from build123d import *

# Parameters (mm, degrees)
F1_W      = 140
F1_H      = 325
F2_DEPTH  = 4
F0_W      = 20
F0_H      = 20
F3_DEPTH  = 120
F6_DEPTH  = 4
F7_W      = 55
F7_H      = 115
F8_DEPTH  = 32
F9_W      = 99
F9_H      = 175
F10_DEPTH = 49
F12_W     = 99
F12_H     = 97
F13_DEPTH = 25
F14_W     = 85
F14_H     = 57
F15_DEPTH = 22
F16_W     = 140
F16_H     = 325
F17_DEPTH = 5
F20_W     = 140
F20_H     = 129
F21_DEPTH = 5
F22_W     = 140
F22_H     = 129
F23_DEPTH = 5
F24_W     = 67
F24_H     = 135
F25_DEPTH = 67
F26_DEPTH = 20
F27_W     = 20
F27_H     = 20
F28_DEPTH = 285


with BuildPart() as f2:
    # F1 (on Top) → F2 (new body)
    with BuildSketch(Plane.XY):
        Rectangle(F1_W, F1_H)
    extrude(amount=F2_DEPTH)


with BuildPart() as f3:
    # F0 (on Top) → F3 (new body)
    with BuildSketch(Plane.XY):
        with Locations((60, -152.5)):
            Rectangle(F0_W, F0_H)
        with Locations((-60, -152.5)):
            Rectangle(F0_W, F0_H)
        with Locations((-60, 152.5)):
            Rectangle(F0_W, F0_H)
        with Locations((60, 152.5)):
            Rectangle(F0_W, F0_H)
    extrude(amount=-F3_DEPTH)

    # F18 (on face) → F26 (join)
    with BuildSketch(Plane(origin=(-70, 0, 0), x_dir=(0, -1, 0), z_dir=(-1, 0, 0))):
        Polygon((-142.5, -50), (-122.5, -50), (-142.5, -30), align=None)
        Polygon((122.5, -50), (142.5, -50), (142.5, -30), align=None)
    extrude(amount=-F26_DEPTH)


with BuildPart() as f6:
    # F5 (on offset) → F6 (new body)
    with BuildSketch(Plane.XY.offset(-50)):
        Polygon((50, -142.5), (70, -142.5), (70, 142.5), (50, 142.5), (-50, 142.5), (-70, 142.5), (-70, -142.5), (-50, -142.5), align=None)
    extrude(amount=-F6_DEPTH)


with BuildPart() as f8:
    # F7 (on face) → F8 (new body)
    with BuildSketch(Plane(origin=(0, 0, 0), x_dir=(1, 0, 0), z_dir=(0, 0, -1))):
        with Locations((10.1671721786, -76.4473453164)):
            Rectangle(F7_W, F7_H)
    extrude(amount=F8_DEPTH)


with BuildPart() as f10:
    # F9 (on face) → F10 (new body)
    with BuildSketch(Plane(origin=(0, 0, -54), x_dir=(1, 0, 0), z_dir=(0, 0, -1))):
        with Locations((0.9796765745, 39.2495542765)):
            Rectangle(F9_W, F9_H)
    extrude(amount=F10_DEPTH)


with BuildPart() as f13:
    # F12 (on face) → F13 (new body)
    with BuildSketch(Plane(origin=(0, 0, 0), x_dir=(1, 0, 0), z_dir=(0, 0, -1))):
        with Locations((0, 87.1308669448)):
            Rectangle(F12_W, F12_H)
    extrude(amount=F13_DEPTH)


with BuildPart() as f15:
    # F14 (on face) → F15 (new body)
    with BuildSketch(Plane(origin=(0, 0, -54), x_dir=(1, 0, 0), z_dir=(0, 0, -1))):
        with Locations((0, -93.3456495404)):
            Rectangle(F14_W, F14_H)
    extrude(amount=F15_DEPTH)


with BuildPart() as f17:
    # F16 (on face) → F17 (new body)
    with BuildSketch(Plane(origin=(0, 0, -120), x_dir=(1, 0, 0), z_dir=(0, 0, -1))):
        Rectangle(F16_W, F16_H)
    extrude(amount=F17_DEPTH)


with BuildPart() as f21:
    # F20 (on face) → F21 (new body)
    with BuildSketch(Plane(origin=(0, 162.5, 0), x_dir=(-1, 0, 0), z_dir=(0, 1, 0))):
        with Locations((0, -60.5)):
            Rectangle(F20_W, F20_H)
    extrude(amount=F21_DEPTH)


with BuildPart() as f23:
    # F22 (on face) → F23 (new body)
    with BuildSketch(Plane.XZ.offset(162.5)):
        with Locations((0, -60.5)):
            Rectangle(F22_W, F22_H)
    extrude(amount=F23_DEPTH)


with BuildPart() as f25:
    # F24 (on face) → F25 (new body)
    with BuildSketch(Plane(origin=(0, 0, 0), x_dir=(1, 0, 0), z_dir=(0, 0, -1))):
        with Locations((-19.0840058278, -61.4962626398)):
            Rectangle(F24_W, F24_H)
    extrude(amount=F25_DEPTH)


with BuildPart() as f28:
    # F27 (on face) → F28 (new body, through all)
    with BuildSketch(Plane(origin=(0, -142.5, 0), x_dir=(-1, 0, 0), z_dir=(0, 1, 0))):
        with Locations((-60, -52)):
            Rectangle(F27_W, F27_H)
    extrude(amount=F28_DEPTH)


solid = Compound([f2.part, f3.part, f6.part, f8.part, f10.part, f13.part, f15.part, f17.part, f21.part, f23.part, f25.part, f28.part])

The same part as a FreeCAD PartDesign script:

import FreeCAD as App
import Part
import Sketcher

V = App.Vector
Q = App.Units.Quantity

doc = App.newDocument("Part")
body = doc.addObject("PartDesign::Body", "Body")

sketch1 = doc.addObject("Sketcher::SketchObject", "Sketch")
body.addObject(sketch1)
sketch1.AttachmentSupport = (doc.XY_Plane, [""])
sketch1.MapMode = "FlatFace"
sketch1.addGeometry([
    Part.LineSegment(V(-70, 162.5, 0), V(-70, -162.5, 0)),
    Part.LineSegment(V(-70, -162.5, 0), V(70, -162.5, 0)),
    Part.LineSegment(V(70, -162.5, 0), V(70, 162.5, 0)),
    Part.LineSegment(V(70, 162.5, 0), V(-70, 162.5, 0)),
], False)
sketch1.addConstraint([
    Sketcher.Constraint("Coincident", 0, 2, 1, 1),
    Sketcher.Constraint("Coincident", 1, 2, 2, 1),
    Sketcher.Constraint("Coincident", 2, 2, 3, 1),
    Sketcher.Constraint("Coincident", 3, 2, 0, 1),
    Sketcher.Constraint("Vertical", 0),
    Sketcher.Constraint("Horizontal", 1),
    Sketcher.Constraint("Vertical", 2),
    Sketcher.Constraint("Horizontal", 3),
    Sketcher.Constraint("Symmetric", 0, 2, 2, 2, -1, 1),
    Sketcher.Constraint("DistanceX", 1, 1, 1, 2, Q("140 mm")),
    Sketcher.Constraint("DistanceY", 0, 2, 0, 1, Q("325 mm")),
])
pad1 = doc.addObject("PartDesign::Pad", "Pad")
body.addObject(pad1)
pad1.Profile = sketch1
pad1.Length = 4
body2 = doc.addObject("PartDesign::Body", "Body001")
body2.AllowCompound = True

sketch2 = doc.addObject("Sketcher::SketchObject", "Sketch001")
body2.addObject(sketch2)
sketch2.AttachmentSupport = (doc.getObject("XY_Plane001"), [""])
sketch2.MapMode = "FlatFace"
sketch2.addGeometry([
    Part.LineSegment(V(50, -142.5, 0), V(50, -162.5, 0)),
    Part.LineSegment(V(50, -162.5, 0), V(70, -162.5, 0)),
    Part.LineSegment(V(70, -162.5, 0), V(70, -142.5, 0)),
    Part.LineSegment(V(70, -142.5, 0), V(50, -142.5, 0)),
    Part.LineSegment(V(-70, -142.5, 0), V(-70, -162.5, 0)),
    Part.LineSegment(V(-70, -162.5, 0), V(-50, -162.5, 0)),
    Part.LineSegment(V(-50, -162.5, 0), V(-50, -142.5, 0)),
    Part.LineSegment(V(-50, -142.5, 0), V(-70, -142.5, 0)),
    Part.LineSegment(V(-70, 162.5, 0), V(-70, 142.5, 0)),
    Part.LineSegment(V(-70, 142.5, 0), V(-50, 142.5, 0)),
    Part.LineSegment(V(-50, 142.5, 0), V(-50, 162.5, 0)),
    Part.LineSegment(V(-50, 162.5, 0), V(-70, 162.5, 0)),
    Part.LineSegment(V(50, 162.5, 0), V(50, 142.5, 0)),
    Part.LineSegment(V(50, 142.5, 0), V(70, 142.5, 0)),
    Part.LineSegment(V(70, 142.5, 0), V(70, 162.5, 0)),
    Part.LineSegment(V(70, 162.5, 0), V(50, 162.5, 0)),
], False)
sketch2.addConstraint([
    Sketcher.Constraint("Coincident", 0, 2, 1, 1),
    Sketcher.Constraint("Coincident", 1, 2, 2, 1),
    Sketcher.Constraint("Coincident", 2, 2, 3, 1),
    Sketcher.Constraint("Coincident", 3, 2, 0, 1),
    Sketcher.Constraint("Coincident", 4, 2, 5, 1),
    Sketcher.Constraint("Coincident", 5, 2, 6, 1),
    Sketcher.Constraint("Coincident", 6, 2, 7, 1),
    Sketcher.Constraint("Coincident", 7, 2, 4, 1),
    Sketcher.Constraint("Coincident", 8, 2, 9, 1),
    Sketcher.Constraint("Coincident", 9, 2, 10, 1),
    Sketcher.Constraint("Coincident", 10, 2, 11, 1),
    Sketcher.Constraint("Coincident", 11, 2, 8, 1),
    Sketcher.Constraint("Coincident", 12, 2, 13, 1),
    Sketcher.Constraint("Coincident", 13, 2, 14, 1),
    Sketcher.Constraint("Coincident", 14, 2, 15, 1),
    Sketcher.Constraint("Coincident", 15, 2, 12, 1),
    Sketcher.Constraint("Vertical", 0),
    Sketcher.Constraint("Horizontal", 1),
    Sketcher.Constraint("Vertical", 2),
    Sketcher.Constraint("Horizontal", 3),
    Sketcher.Constraint("Vertical", 4),
    Sketcher.Constraint("Horizontal", 5),
    Sketcher.Constraint("Vertical", 6),
    Sketcher.Constraint("Horizontal", 7),
    Sketcher.Constraint("Vertical", 8),
    Sketcher.Constraint("Horizontal", 9),
    Sketcher.Constraint("Vertical", 10),
    Sketcher.Constraint("Horizontal", 11),
    Sketcher.Constraint("Vertical", 12),
    Sketcher.Constraint("Horizontal", 13),
    Sketcher.Constraint("Vertical", 14),
    Sketcher.Constraint("Horizontal", 15),
    Sketcher.Constraint("Symmetric", 2, 2, 8, 2, -1, 1),
    Sketcher.Constraint("Symmetric", 0, 2, 10, 2, -1, 1),
    Sketcher.Constraint("Symmetric", 6, 2, 12, 2, -1, 1),
    Sketcher.Constraint("Symmetric", 4, 2, 14, 2, -1, 1),
    Sketcher.Constraint("Symmetric", 1, 2, 4, 2, -2),
    Sketcher.Constraint("Symmetric", 3, 2, 6, 2, -2),
    Sketcher.Constraint("Equal", 15, 0),
    Sketcher.Constraint("DistanceX", 1, 1, 1, 2, Q("20 mm")),
    Sketcher.Constraint("DistanceX", -1, 1, 0, 2, Q("50 mm")),
    Sketcher.Constraint("DistanceY", 7, 2, 8, 2, Q("285 mm")),
])
pad2 = doc.addObject("PartDesign::Pad", "Pad001")
body2.addObject(pad2)
pad2.Profile = sketch2
pad2.Length = 120
pad2.Reversed = True

sketch3 = doc.addObject("Sketcher::SketchObject", "Sketch002")
body2.addObject(sketch3)
sketch3.AttachmentSupport = (doc.getObject("YZ_Plane001"), [""])
sketch3.MapMode = "FlatFace"
sketch3.AttachmentOffset = App.Placement(V(0, 0, -70), App.Rotation())
sketch3.addGeometry([
    Part.LineSegment(V(142.5, -50, 0), V(122.5, -50, 0)),
    Part.LineSegment(V(122.5, -50, 0), V(142.5, -30, 0)),
    Part.LineSegment(V(142.5, -30, 0), V(142.5, -50, 0)),
    Part.LineSegment(V(-122.5, -50, 0), V(-142.5, -50, 0)),
    Part.LineSegment(V(-142.5, -50, 0), V(-142.5, -30, 0)),
    Part.LineSegment(V(-142.5, -30, 0), V(-122.5, -50, 0)),
], False)
sketch3.addConstraint([
    Sketcher.Constraint("Coincident", 0, 2, 1, 1),
    Sketcher.Constraint("Coincident", 1, 2, 2, 1),
    Sketcher.Constraint("Coincident", 2, 2, 0, 1),
    Sketcher.Constraint("Coincident", 3, 2, 4, 1),
    Sketcher.Constraint("Coincident", 4, 2, 5, 1),
    Sketcher.Constraint("Coincident", 5, 2, 3, 1),
    Sketcher.Constraint("Horizontal", 0),
    Sketcher.Constraint("Vertical", 2),
    Sketcher.Constraint("Horizontal", 3),
    Sketcher.Constraint("Vertical", 4),
    Sketcher.Constraint("Symmetric", 2, 2, 3, 2, -2),
    Sketcher.Constraint("Perpendicular", 1, 5),
    Sketcher.Constraint("Horizontal", 1, 2, 4, 2),
    Sketcher.Constraint("Equal", 0, 3),
    Sketcher.Constraint("DistanceX", 0, 2, 0, 1, Q("20 mm")),
    Sketcher.Constraint("DistanceY", 0, 2, -1, 1, Q("50 mm")),
    Sketcher.Constraint("DistanceX", 3, 2, 0, 2, Q("265 mm")),
])
pad3 = doc.addObject("PartDesign::Pad", "Pad002")
body2.addObject(pad3)
pad3.Profile = sketch3
pad3.Length = 20
body3 = doc.addObject("PartDesign::Body", "Body002")

sketch4 = doc.addObject("Sketcher::SketchObject", "Sketch003")
body3.addObject(sketch4)
sketch4.AttachmentSupport = (doc.getObject("XY_Plane002"), [""])
sketch4.MapMode = "FlatFace"
sketch4.AttachmentOffset = App.Placement(V(0, 0, -50), App.Rotation())
sketch4.addGeometry([
    Part.LineSegment(V(70, -142.5, 0), V(70, 142.5, 0)),
    Part.LineSegment(V(70, 142.5, 0), V(-70, 142.5, 0)),
    Part.LineSegment(V(-70, 142.5, 0), V(-70, -142.5, 0)),
    Part.LineSegment(V(-70, -142.5, 0), V(70, -142.5, 0)),
], False)
sketch4.addConstraint([
    Sketcher.Constraint("Coincident", 0, 2, 1, 1),
    Sketcher.Constraint("Coincident", 1, 2, 2, 1),
    Sketcher.Constraint("Coincident", 2, 2, 3, 1),
    Sketcher.Constraint("Coincident", 3, 2, 0, 1),
    Sketcher.Constraint("Vertical", 0),
    Sketcher.Constraint("Horizontal", 1),
    Sketcher.Constraint("Vertical", 2),
    Sketcher.Constraint("Horizontal", 3),
    Sketcher.Constraint("Symmetric", 0, 2, 2, 2, -1, 1),
    Sketcher.Constraint("DistanceX", 1, 2, 1, 1, Q("140 mm")),
    Sketcher.Constraint("DistanceY", 0, 1, 0, 2, Q("285 mm")),
])
pad4 = doc.addObject("PartDesign::Pad", "Pad003")
body3.addObject(pad4)
pad4.Profile = sketch4
pad4.Length = 4
pad4.Reversed = True
body4 = doc.addObject("PartDesign::Body", "Body003")

sketch5 = doc.addObject("Sketcher::SketchObject", "Sketch004")
body4.addObject(sketch5)
sketch5.AttachmentSupport = (doc.getObject("XY_Plane003"), [""])
sketch5.MapMode = "FlatFace"
sketch5.addGeometry([
    Part.LineSegment(V(-17.332828, 18.947345, 0), V(-17.332828, 133.947345, 0)),
    Part.LineSegment(V(-17.332828, 133.947345, 0), V(37.667172, 133.947345, 0)),
    Part.LineSegment(V(37.667172, 133.947345, 0), V(37.667172, 18.947345, 0)),
    Part.LineSegment(V(37.667172, 18.947345, 0), V(-17.332828, 18.947345, 0)),
], False)
sketch5.addConstraint([
    Sketcher.Constraint("Coincident", 0, 2, 1, 1),
    Sketcher.Constraint("Coincident", 1, 2, 2, 1),
    Sketcher.Constraint("Coincident", 2, 2, 3, 1),
    Sketcher.Constraint("Coincident", 3, 2, 0, 1),
    Sketcher.Constraint("Vertical", 0),
    Sketcher.Constraint("Horizontal", 1),
    Sketcher.Constraint("Vertical", 2),
    Sketcher.Constraint("Horizontal", 3),
    Sketcher.Constraint("DistanceX", 1, 1, 1, 2, Q("55 mm")),
    Sketcher.Constraint("DistanceY", 0, 1, 0, 2, Q("115 mm")),
    Sketcher.Constraint("DistanceX", 0, 2, -1, 1, Q("17.332828 mm")),
    Sketcher.Constraint("DistanceY", -1, 1, 0, 2, Q("133.947345 mm")),
])
pad5 = doc.addObject("PartDesign::Pad", "Pad004")
body4.addObject(pad5)
pad5.Profile = sketch5
pad5.Length = 32
pad5.Reversed = True
body5 = doc.addObject("PartDesign::Body", "Body004")

sketch6 = doc.addObject("Sketcher::SketchObject", "Sketch005")
body5.addObject(sketch6)
sketch6.AttachmentSupport = (doc.getObject("XY_Plane004"), [""])
sketch6.MapMode = "FlatFace"
sketch6.AttachmentOffset = App.Placement(V(0, 0, -54), App.Rotation())
sketch6.addGeometry([
    Part.LineSegment(V(-48.520323, -126.749554, 0), V(-48.520323, 48.250446, 0)),
    Part.LineSegment(V(-48.520323, 48.250446, 0), V(50.479677, 48.250446, 0)),
    Part.LineSegment(V(50.479677, 48.250446, 0), V(50.479677, -126.749554, 0)),
    Part.LineSegment(V(50.479677, -126.749554, 0), V(-48.520323, -126.749554, 0)),
], False)
sketch6.addConstraint([
    Sketcher.Constraint("Coincident", 0, 2, 1, 1),
    Sketcher.Constraint("Coincident", 1, 2, 2, 1),
    Sketcher.Constraint("Coincident", 2, 2, 3, 1),
    Sketcher.Constraint("Coincident", 3, 2, 0, 1),
    Sketcher.Constraint("Vertical", 0),
    Sketcher.Constraint("Horizontal", 1),
    Sketcher.Constraint("Vertical", 2),
    Sketcher.Constraint("Horizontal", 3),
    Sketcher.Constraint("DistanceX", 1, 1, 1, 2, Q("99 mm")),
    Sketcher.Constraint("DistanceY", 0, 1, 0, 2, Q("175 mm")),
    Sketcher.Constraint("DistanceX", 0, 2, -1, 1, Q("48.520323 mm")),
    Sketcher.Constraint("DistanceY", -1, 1, 0, 2, Q("48.250446 mm")),
])
pad6 = doc.addObject("PartDesign::Pad", "Pad005")
body5.addObject(pad6)
pad6.Profile = sketch6
pad6.Length = 49
pad6.Reversed = True
body6 = doc.addObject("PartDesign::Body", "Body005")

sketch7 = doc.addObject("Sketcher::SketchObject", "Sketch006")
body6.addObject(sketch7)
sketch7.AttachmentSupport = (doc.getObject("XY_Plane005"), [""])
sketch7.MapMode = "FlatFace"
sketch7.addGeometry([
    Part.LineSegment(V(-49.5, -135.630867, 0), V(-49.5, -38.630867, 0)),
    Part.LineSegment(V(-49.5, -38.630867, 0), V(49.5, -38.630867, 0)),
    Part.LineSegment(V(49.5, -38.630867, 0), V(49.5, -135.630867, 0)),
    Part.LineSegment(V(49.5, -135.630867, 0), V(-49.5, -135.630867, 0)),
], False)
sketch7.addConstraint([
    Sketcher.Constraint("Coincident", 0, 2, 1, 1),
    Sketcher.Constraint("Coincident", 1, 2, 2, 1),
    Sketcher.Constraint("Coincident", 2, 2, 3, 1),
    Sketcher.Constraint("Coincident", 3, 2, 0, 1),
    Sketcher.Constraint("Vertical", 0),
    Sketcher.Constraint("Horizontal", 1),
    Sketcher.Constraint("Vertical", 2),
    Sketcher.Constraint("Horizontal", 3),
    Sketcher.Constraint("DistanceX", 1, 1, 1, 2, Q("99 mm")),
    Sketcher.Constraint("DistanceY", 0, 1, 0, 2, Q("97 mm")),
    Sketcher.Constraint("DistanceX", 0, 2, -1, 1, Q("49.5 mm")),
    Sketcher.Constraint("DistanceY", 0, 2, -1, 1, Q("38.630867 mm")),
])
pad7 = doc.addObject("PartDesign::Pad", "Pad006")
body6.addObject(pad7)
pad7.Profile = sketch7
pad7.Length = 25
pad7.Reversed = True
body7 = doc.addObject("PartDesign::Body", "Body006")

sketch8 = doc.addObject("Sketcher::SketchObject", "Sketch007")
body7.addObject(sketch8)
sketch8.AttachmentSupport = (doc.getObject("XY_Plane006"), [""])
sketch8.MapMode = "FlatFace"
sketch8.AttachmentOffset = App.Placement(V(0, 0, -54), App.Rotation())
sketch8.addGeometry([
    Part.LineSegment(V(-42.5, 64.84565, 0), V(-42.5, 121.84565, 0)),
    Part.LineSegment(V(-42.5, 121.84565, 0), V(42.5, 121.84565, 0)),
    Part.LineSegment(V(42.5, 121.84565, 0), V(42.5, 64.84565, 0)),
    Part.LineSegment(V(42.5, 64.84565, 0), V(-42.5, 64.84565, 0)),
], False)
sketch8.addConstraint([
    Sketcher.Constraint("Coincident", 0, 2, 1, 1),
    Sketcher.Constraint("Coincident", 1, 2, 2, 1),
    Sketcher.Constraint("Coincident", 2, 2, 3, 1),
    Sketcher.Constraint("Coincident", 3, 2, 0, 1),
    Sketcher.Constraint("Vertical", 0),
    Sketcher.Constraint("Horizontal", 1),
    Sketcher.Constraint("Vertical", 2),
    Sketcher.Constraint("Horizontal", 3),
    Sketcher.Constraint("DistanceX", 1, 1, 1, 2, Q("85 mm")),
    Sketcher.Constraint("DistanceY", 0, 1, 0, 2, Q("57 mm")),
    Sketcher.Constraint("DistanceX", 0, 2, -1, 1, Q("42.5 mm")),
    Sketcher.Constraint("DistanceY", -1, 1, 0, 2, Q("121.84565 mm")),
])
pad8 = doc.addObject("PartDesign::Pad", "Pad007")
body7.addObject(pad8)
pad8.Profile = sketch8
pad8.Length = 22
pad8.Reversed = True
body8 = doc.addObject("PartDesign::Body", "Body007")

sketch9 = doc.addObject("Sketcher::SketchObject", "Sketch008")
body8.addObject(sketch9)
sketch9.AttachmentSupport = (doc.getObject("XY_Plane007"), [""])
sketch9.MapMode = "FlatFace"
sketch9.AttachmentOffset = App.Placement(V(0, 0, -120), App.Rotation())
sketch9.addGeometry([
    Part.LineSegment(V(-70, -162.5, 0), V(-70, 162.5, 0)),
    Part.LineSegment(V(-70, 162.5, 0), V(70, 162.5, 0)),
    Part.LineSegment(V(70, 162.5, 0), V(70, -162.5, 0)),
    Part.LineSegment(V(70, -162.5, 0), V(-70, -162.5, 0)),
], False)
sketch9.addConstraint([
    Sketcher.Constraint("Coincident", 0, 2, 1, 1),
    Sketcher.Constraint("Coincident", 1, 2, 2, 1),
    Sketcher.Constraint("Coincident", 2, 2, 3, 1),
    Sketcher.Constraint("Coincident", 3, 2, 0, 1),
    Sketcher.Constraint("Vertical", 0),
    Sketcher.Constraint("Horizontal", 1),
    Sketcher.Constraint("Vertical", 2),
    Sketcher.Constraint("Horizontal", 3),
    Sketcher.Constraint("Symmetric", 0, 2, 2, 2, -1, 1),
    Sketcher.Constraint("DistanceX", 1, 1, 1, 2, Q("140 mm")),
    Sketcher.Constraint("DistanceY", 0, 1, 0, 2, Q("325 mm")),
])
pad9 = doc.addObject("PartDesign::Pad", "Pad008")
body8.addObject(pad9)
pad9.Profile = sketch9
pad9.Length = 5
pad9.Reversed = True
body9 = doc.addObject("PartDesign::Body", "Body008")

sketch10 = doc.addObject("Sketcher::SketchObject", "Sketch009")
body9.addObject(sketch10)
sketch10.AttachmentSupport = (doc.getObject("XZ_Plane008"), [""])
sketch10.MapMode = "FlatFace"
sketch10.AttachmentOffset = App.Placement(V(0, 0, -162.5), App.Rotation())
sketch10.addGeometry([
    Part.LineSegment(V(70, 4, 0), V(70, -125, 0)),
    Part.LineSegment(V(70, -125, 0), V(-70, -125, 0)),
    Part.LineSegment(V(-70, -125, 0), V(-70, 4, 0)),
    Part.LineSegment(V(-70, 4, 0), V(70, 4, 0)),
], False)
sketch10.addConstraint([
    Sketcher.Constraint("Coincident", 0, 2, 1, 1),
    Sketcher.Constraint("Coincident", 1, 2, 2, 1),
    Sketcher.Constraint("Coincident", 2, 2, 3, 1),
    Sketcher.Constraint("Coincident", 3, 2, 0, 1),
    Sketcher.Constraint("Vertical", 0),
    Sketcher.Constraint("Horizontal", 1),
    Sketcher.Constraint("Vertical", 2),
    Sketcher.Constraint("Horizontal", 3),
    Sketcher.Constraint("DistanceX", 1, 2, 1, 1, Q("140 mm")),
    Sketcher.Constraint("DistanceY", 0, 2, 0, 1, Q("129 mm")),
    Sketcher.Constraint("DistanceX", -1, 1, 0, 2, Q("70 mm")),
    Sketcher.Constraint("DistanceY", 0, 2, -1, 1, Q("125 mm")),
])
pad10 = doc.addObject("PartDesign::Pad", "Pad009")
body9.addObject(pad10)
pad10.Profile = sketch10
pad10.Length = 5
pad10.Reversed = True
body10 = doc.addObject("PartDesign::Body", "Body009")

sketch11 = doc.addObject("Sketcher::SketchObject", "Sketch010")
body10.addObject(sketch11)
sketch11.AttachmentSupport = (doc.getObject("XZ_Plane009"), [""])
sketch11.MapMode = "FlatFace"
sketch11.AttachmentOffset = App.Placement(V(0, 0, 162.5), App.Rotation())
sketch11.addGeometry([
    Part.LineSegment(V(-70, 4, 0), V(-70, -125, 0)),
    Part.LineSegment(V(-70, -125, 0), V(70, -125, 0)),
    Part.LineSegment(V(70, -125, 0), V(70, 4, 0)),
    Part.LineSegment(V(70, 4, 0), V(-70, 4, 0)),
], False)
sketch11.addConstraint([
    Sketcher.Constraint("Coincident", 0, 2, 1, 1),
    Sketcher.Constraint("Coincident", 1, 2, 2, 1),
    Sketcher.Constraint("Coincident", 2, 2, 3, 1),
    Sketcher.Constraint("Coincident", 3, 2, 0, 1),
    Sketcher.Constraint("Vertical", 0),
    Sketcher.Constraint("Horizontal", 1),
    Sketcher.Constraint("Vertical", 2),
    Sketcher.Constraint("Horizontal", 3),
    Sketcher.Constraint("DistanceX", 1, 1, 1, 2, Q("140 mm")),
    Sketcher.Constraint("DistanceY", 0, 2, 0, 1, Q("129 mm")),
    Sketcher.Constraint("DistanceX", 0, 2, -1, 1, Q("70 mm")),
    Sketcher.Constraint("DistanceY", 0, 2, -1, 1, Q("125 mm")),
])
pad11 = doc.addObject("PartDesign::Pad", "Pad010")
body10.addObject(pad11)
pad11.Profile = sketch11
pad11.Length = 5
body11 = doc.addObject("PartDesign::Body", "Body010")

sketch12 = doc.addObject("Sketcher::SketchObject", "Sketch011")
body11.addObject(sketch12)
sketch12.AttachmentSupport = (doc.getObject("XY_Plane010"), [""])
sketch12.MapMode = "FlatFace"
sketch12.addGeometry([
    Part.LineSegment(V(-52.584006, -6.003737, 0), V(-52.584006, 128.996263, 0)),
    Part.LineSegment(V(-52.584006, 128.996263, 0), V(14.415994, 128.996263, 0)),
    Part.LineSegment(V(14.415994, 128.996263, 0), V(14.415994, -6.003737, 0)),
    Part.LineSegment(V(14.415994, -6.003737, 0), V(-52.584006, -6.003737, 0)),
], False)
sketch12.addConstraint([
    Sketcher.Constraint("Coincident", 0, 2, 1, 1),
    Sketcher.Constraint("Coincident", 1, 2, 2, 1),
    Sketcher.Constraint("Coincident", 2, 2, 3, 1),
    Sketcher.Constraint("Coincident", 3, 2, 0, 1),
    Sketcher.Constraint("Vertical", 0),
    Sketcher.Constraint("Horizontal", 1),
    Sketcher.Constraint("Vertical", 2),
    Sketcher.Constraint("Horizontal", 3),
    Sketcher.Constraint("DistanceX", 1, 1, 1, 2, Q("67 mm")),
    Sketcher.Constraint("DistanceY", 0, 1, 0, 2, Q("135 mm")),
    Sketcher.Constraint("DistanceX", 0, 2, -1, 1, Q("52.584006 mm")),
    Sketcher.Constraint("DistanceY", -1, 1, 0, 2, Q("128.996263 mm")),
])
pad12 = doc.addObject("PartDesign::Pad", "Pad011")
body11.addObject(pad12)
pad12.Profile = sketch12
pad12.Length = 67
pad12.Reversed = True
body12 = doc.addObject("PartDesign::Body", "Body011")

sketch13 = doc.addObject("Sketcher::SketchObject", "Sketch012")
body12.addObject(sketch13)
sketch13.AttachmentSupport = (doc.getObject("XZ_Plane011"), [""])
sketch13.MapMode = "FlatFace"
sketch13.AttachmentOffset = App.Placement(V(0, 0, 142.5), App.Rotation())
sketch13.addGeometry([
    Part.LineSegment(V(70, -42, 0), V(70, -62, 0)),
    Part.LineSegment(V(70, -62, 0), V(50, -62, 0)),
    Part.LineSegment(V(50, -62, 0), V(50, -42, 0)),
    Part.LineSegment(V(50, -42, 0), V(70, -42, 0)),
], False)
sketch13.addConstraint([
    Sketcher.Constraint("Coincident", 0, 2, 1, 1),
    Sketcher.Constraint("Coincident", 1, 2, 2, 1),
    Sketcher.Constraint("Coincident", 2, 2, 3, 1),
    Sketcher.Constraint("Coincident", 3, 2, 0, 1),
    Sketcher.Constraint("Vertical", 0),
    Sketcher.Constraint("Horizontal", 1),
    Sketcher.Constraint("Vertical", 2),
    Sketcher.Constraint("Horizontal", 3),
    Sketcher.Constraint("Equal", 3, 0),
    Sketcher.Constraint("DistanceX", 1, 2, 1, 1, Q("20 mm")),
    Sketcher.Constraint("DistanceX", -1, 1, 0, 2, Q("70 mm")),
    Sketcher.Constraint("DistanceY", 0, 2, -1, 1, Q("62 mm")),
])
pad13 = doc.addObject("PartDesign::Pad", "Pad012")
body12.addObject(pad13)
pad13.Profile = sketch13
pad13.Length = 285
pad13.Reversed = True

doc.recompute()
